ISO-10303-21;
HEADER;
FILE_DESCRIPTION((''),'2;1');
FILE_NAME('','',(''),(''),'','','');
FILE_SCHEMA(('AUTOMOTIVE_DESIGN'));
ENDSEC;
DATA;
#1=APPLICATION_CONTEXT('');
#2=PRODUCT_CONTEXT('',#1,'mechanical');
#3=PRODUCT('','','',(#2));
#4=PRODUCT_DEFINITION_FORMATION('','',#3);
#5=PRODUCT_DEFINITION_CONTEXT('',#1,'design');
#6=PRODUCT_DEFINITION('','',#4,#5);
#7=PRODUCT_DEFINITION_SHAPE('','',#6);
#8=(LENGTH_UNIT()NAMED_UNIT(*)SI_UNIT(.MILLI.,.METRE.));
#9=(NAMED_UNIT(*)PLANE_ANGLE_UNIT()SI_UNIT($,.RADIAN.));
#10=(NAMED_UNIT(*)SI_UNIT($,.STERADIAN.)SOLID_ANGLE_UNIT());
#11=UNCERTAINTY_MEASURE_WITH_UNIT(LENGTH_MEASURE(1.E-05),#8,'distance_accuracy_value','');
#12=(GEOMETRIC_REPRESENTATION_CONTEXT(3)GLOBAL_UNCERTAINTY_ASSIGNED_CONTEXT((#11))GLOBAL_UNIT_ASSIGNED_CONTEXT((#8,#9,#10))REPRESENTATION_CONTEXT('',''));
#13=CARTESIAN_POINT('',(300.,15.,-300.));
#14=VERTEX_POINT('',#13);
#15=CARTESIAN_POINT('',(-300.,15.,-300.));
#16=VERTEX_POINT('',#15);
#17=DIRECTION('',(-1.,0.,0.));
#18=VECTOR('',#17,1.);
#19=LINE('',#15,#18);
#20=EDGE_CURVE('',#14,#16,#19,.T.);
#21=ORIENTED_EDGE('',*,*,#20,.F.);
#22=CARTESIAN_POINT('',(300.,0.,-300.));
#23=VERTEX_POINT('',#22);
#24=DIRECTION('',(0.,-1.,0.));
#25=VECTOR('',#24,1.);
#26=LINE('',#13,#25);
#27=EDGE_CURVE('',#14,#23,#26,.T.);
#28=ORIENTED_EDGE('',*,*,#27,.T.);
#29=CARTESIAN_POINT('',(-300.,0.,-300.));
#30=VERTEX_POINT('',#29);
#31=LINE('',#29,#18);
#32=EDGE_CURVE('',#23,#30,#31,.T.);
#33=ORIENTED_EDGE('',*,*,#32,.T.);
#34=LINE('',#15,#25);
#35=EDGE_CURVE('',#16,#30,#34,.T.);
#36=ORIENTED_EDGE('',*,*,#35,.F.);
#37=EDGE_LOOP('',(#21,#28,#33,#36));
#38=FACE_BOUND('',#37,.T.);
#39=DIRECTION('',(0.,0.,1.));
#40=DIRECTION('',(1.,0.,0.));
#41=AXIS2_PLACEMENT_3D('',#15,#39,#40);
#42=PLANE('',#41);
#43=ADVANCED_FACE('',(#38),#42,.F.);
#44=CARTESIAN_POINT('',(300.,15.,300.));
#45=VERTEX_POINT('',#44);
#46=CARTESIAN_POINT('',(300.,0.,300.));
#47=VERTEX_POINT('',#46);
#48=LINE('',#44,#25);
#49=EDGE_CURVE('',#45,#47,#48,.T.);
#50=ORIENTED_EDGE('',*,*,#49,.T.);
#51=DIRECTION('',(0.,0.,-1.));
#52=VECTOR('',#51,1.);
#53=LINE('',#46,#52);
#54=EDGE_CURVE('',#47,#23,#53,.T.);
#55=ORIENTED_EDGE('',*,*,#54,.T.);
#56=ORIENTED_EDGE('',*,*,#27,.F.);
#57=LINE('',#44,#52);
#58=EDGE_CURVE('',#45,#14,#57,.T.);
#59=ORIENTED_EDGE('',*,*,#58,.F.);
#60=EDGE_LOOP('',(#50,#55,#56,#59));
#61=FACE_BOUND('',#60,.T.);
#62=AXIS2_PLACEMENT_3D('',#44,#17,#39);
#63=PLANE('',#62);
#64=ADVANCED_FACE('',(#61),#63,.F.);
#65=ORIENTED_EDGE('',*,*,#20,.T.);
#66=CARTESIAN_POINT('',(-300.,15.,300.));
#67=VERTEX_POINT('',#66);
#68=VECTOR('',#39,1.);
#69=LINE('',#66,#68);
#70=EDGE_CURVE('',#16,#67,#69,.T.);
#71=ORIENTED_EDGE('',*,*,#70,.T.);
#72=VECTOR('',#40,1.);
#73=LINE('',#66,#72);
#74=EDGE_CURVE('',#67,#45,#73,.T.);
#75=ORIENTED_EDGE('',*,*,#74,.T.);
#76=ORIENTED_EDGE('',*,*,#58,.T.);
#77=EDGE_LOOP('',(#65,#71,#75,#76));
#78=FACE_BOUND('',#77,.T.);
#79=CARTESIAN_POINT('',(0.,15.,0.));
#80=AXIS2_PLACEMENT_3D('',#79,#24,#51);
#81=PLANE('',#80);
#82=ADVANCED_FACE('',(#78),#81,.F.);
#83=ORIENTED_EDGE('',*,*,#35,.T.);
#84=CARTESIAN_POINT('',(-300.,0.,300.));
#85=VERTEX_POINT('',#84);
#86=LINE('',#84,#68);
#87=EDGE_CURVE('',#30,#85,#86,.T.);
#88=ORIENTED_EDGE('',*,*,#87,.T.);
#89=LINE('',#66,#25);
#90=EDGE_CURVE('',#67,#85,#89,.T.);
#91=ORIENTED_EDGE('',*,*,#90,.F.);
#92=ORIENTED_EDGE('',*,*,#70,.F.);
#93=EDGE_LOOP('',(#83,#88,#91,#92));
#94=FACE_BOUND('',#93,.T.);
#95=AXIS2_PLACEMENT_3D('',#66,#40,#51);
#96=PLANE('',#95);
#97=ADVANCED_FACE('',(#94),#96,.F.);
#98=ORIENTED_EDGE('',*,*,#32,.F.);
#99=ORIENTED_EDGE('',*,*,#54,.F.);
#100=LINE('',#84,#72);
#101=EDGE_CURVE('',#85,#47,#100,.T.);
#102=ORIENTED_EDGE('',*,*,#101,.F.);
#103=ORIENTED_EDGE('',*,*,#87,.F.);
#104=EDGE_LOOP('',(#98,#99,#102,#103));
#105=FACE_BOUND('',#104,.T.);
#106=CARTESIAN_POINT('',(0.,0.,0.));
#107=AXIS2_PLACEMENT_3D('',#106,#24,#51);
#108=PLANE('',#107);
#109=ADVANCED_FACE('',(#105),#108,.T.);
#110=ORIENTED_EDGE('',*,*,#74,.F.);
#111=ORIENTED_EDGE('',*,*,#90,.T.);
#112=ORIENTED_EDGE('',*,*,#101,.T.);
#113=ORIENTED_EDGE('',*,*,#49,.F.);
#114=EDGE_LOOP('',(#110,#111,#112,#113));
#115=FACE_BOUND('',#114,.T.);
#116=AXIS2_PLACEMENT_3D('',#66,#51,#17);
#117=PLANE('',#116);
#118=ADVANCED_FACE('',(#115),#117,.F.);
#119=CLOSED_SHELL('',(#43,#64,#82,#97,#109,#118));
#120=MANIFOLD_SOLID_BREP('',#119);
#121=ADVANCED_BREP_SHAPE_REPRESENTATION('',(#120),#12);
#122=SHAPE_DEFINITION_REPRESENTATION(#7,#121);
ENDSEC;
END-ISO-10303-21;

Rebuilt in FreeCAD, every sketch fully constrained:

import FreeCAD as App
import Part
import Sketcher
from FreeCAD import Vector

doc = App.newDocument("Part")
body = doc.addObject("PartDesign::Body", "Body")

sketch1 = doc.addObject("Sketcher::SketchObject", "Sketch")
body.addObject(sketch1)
sketch1.AttachmentSupport = (doc.XZ_Plane, [""])
sketch1.MapMode = "FlatFace"
sketch1.addGeometry(Part.LineSegment(Vector(-300, -300, 0), Vector(-300, 300, 0)), False)
sketch1.addGeometry(Part.LineSegment(Vector(-300, 300, 0), Vector(300, 300, 0)), False)
sketch1.addGeometry(Part.LineSegment(Vector(300, 300, 0), Vector(300, -300, 0)), False)
sketch1.addGeometry(Part.LineSegment(Vector(300, -300, 0), Vector(-300, -300, 0)), False)
sketch1.addConstraint(Sketcher.Constraint("Coincident", 0, 2, 1, 1))
sketch1.addConstraint(Sketcher.Constraint("Coincident", 1, 2, 2, 1))
sketch1.addConstraint(Sketcher.Constraint("Coincident", 2, 2, 3, 1))
sketch1.addConstraint(Sketcher.Constraint("Coincident", 3, 2, 0, 1))
sketch1.addConstraint(Sketcher.Constraint("Vertical", 0))
sketch1.addConstraint(Sketcher.Constraint("Horizontal", 1))
sketch1.addConstraint(Sketcher.Constraint("Vertical", 2))
sketch1.addConstraint(Sketcher.Constraint("Horizontal", 3))
sketch1.addConstraint(Sketcher.Constraint("Symmetric", 0, 2, 2, 2, -1, 1))
sketch1.addConstraint(Sketcher.Constraint("Equal", 3, 0))
sketch1.addConstraint(Sketcher.Constraint("DistanceX", 1, 1, 1, 2, 600.0))
pad1 = doc.addObject("PartDesign::Pad", "Pad")
body.addObject(pad1)
pad1.Profile = sketch1
pad1.Length = 15
pad1.Reversed = True

doc.recompute()
